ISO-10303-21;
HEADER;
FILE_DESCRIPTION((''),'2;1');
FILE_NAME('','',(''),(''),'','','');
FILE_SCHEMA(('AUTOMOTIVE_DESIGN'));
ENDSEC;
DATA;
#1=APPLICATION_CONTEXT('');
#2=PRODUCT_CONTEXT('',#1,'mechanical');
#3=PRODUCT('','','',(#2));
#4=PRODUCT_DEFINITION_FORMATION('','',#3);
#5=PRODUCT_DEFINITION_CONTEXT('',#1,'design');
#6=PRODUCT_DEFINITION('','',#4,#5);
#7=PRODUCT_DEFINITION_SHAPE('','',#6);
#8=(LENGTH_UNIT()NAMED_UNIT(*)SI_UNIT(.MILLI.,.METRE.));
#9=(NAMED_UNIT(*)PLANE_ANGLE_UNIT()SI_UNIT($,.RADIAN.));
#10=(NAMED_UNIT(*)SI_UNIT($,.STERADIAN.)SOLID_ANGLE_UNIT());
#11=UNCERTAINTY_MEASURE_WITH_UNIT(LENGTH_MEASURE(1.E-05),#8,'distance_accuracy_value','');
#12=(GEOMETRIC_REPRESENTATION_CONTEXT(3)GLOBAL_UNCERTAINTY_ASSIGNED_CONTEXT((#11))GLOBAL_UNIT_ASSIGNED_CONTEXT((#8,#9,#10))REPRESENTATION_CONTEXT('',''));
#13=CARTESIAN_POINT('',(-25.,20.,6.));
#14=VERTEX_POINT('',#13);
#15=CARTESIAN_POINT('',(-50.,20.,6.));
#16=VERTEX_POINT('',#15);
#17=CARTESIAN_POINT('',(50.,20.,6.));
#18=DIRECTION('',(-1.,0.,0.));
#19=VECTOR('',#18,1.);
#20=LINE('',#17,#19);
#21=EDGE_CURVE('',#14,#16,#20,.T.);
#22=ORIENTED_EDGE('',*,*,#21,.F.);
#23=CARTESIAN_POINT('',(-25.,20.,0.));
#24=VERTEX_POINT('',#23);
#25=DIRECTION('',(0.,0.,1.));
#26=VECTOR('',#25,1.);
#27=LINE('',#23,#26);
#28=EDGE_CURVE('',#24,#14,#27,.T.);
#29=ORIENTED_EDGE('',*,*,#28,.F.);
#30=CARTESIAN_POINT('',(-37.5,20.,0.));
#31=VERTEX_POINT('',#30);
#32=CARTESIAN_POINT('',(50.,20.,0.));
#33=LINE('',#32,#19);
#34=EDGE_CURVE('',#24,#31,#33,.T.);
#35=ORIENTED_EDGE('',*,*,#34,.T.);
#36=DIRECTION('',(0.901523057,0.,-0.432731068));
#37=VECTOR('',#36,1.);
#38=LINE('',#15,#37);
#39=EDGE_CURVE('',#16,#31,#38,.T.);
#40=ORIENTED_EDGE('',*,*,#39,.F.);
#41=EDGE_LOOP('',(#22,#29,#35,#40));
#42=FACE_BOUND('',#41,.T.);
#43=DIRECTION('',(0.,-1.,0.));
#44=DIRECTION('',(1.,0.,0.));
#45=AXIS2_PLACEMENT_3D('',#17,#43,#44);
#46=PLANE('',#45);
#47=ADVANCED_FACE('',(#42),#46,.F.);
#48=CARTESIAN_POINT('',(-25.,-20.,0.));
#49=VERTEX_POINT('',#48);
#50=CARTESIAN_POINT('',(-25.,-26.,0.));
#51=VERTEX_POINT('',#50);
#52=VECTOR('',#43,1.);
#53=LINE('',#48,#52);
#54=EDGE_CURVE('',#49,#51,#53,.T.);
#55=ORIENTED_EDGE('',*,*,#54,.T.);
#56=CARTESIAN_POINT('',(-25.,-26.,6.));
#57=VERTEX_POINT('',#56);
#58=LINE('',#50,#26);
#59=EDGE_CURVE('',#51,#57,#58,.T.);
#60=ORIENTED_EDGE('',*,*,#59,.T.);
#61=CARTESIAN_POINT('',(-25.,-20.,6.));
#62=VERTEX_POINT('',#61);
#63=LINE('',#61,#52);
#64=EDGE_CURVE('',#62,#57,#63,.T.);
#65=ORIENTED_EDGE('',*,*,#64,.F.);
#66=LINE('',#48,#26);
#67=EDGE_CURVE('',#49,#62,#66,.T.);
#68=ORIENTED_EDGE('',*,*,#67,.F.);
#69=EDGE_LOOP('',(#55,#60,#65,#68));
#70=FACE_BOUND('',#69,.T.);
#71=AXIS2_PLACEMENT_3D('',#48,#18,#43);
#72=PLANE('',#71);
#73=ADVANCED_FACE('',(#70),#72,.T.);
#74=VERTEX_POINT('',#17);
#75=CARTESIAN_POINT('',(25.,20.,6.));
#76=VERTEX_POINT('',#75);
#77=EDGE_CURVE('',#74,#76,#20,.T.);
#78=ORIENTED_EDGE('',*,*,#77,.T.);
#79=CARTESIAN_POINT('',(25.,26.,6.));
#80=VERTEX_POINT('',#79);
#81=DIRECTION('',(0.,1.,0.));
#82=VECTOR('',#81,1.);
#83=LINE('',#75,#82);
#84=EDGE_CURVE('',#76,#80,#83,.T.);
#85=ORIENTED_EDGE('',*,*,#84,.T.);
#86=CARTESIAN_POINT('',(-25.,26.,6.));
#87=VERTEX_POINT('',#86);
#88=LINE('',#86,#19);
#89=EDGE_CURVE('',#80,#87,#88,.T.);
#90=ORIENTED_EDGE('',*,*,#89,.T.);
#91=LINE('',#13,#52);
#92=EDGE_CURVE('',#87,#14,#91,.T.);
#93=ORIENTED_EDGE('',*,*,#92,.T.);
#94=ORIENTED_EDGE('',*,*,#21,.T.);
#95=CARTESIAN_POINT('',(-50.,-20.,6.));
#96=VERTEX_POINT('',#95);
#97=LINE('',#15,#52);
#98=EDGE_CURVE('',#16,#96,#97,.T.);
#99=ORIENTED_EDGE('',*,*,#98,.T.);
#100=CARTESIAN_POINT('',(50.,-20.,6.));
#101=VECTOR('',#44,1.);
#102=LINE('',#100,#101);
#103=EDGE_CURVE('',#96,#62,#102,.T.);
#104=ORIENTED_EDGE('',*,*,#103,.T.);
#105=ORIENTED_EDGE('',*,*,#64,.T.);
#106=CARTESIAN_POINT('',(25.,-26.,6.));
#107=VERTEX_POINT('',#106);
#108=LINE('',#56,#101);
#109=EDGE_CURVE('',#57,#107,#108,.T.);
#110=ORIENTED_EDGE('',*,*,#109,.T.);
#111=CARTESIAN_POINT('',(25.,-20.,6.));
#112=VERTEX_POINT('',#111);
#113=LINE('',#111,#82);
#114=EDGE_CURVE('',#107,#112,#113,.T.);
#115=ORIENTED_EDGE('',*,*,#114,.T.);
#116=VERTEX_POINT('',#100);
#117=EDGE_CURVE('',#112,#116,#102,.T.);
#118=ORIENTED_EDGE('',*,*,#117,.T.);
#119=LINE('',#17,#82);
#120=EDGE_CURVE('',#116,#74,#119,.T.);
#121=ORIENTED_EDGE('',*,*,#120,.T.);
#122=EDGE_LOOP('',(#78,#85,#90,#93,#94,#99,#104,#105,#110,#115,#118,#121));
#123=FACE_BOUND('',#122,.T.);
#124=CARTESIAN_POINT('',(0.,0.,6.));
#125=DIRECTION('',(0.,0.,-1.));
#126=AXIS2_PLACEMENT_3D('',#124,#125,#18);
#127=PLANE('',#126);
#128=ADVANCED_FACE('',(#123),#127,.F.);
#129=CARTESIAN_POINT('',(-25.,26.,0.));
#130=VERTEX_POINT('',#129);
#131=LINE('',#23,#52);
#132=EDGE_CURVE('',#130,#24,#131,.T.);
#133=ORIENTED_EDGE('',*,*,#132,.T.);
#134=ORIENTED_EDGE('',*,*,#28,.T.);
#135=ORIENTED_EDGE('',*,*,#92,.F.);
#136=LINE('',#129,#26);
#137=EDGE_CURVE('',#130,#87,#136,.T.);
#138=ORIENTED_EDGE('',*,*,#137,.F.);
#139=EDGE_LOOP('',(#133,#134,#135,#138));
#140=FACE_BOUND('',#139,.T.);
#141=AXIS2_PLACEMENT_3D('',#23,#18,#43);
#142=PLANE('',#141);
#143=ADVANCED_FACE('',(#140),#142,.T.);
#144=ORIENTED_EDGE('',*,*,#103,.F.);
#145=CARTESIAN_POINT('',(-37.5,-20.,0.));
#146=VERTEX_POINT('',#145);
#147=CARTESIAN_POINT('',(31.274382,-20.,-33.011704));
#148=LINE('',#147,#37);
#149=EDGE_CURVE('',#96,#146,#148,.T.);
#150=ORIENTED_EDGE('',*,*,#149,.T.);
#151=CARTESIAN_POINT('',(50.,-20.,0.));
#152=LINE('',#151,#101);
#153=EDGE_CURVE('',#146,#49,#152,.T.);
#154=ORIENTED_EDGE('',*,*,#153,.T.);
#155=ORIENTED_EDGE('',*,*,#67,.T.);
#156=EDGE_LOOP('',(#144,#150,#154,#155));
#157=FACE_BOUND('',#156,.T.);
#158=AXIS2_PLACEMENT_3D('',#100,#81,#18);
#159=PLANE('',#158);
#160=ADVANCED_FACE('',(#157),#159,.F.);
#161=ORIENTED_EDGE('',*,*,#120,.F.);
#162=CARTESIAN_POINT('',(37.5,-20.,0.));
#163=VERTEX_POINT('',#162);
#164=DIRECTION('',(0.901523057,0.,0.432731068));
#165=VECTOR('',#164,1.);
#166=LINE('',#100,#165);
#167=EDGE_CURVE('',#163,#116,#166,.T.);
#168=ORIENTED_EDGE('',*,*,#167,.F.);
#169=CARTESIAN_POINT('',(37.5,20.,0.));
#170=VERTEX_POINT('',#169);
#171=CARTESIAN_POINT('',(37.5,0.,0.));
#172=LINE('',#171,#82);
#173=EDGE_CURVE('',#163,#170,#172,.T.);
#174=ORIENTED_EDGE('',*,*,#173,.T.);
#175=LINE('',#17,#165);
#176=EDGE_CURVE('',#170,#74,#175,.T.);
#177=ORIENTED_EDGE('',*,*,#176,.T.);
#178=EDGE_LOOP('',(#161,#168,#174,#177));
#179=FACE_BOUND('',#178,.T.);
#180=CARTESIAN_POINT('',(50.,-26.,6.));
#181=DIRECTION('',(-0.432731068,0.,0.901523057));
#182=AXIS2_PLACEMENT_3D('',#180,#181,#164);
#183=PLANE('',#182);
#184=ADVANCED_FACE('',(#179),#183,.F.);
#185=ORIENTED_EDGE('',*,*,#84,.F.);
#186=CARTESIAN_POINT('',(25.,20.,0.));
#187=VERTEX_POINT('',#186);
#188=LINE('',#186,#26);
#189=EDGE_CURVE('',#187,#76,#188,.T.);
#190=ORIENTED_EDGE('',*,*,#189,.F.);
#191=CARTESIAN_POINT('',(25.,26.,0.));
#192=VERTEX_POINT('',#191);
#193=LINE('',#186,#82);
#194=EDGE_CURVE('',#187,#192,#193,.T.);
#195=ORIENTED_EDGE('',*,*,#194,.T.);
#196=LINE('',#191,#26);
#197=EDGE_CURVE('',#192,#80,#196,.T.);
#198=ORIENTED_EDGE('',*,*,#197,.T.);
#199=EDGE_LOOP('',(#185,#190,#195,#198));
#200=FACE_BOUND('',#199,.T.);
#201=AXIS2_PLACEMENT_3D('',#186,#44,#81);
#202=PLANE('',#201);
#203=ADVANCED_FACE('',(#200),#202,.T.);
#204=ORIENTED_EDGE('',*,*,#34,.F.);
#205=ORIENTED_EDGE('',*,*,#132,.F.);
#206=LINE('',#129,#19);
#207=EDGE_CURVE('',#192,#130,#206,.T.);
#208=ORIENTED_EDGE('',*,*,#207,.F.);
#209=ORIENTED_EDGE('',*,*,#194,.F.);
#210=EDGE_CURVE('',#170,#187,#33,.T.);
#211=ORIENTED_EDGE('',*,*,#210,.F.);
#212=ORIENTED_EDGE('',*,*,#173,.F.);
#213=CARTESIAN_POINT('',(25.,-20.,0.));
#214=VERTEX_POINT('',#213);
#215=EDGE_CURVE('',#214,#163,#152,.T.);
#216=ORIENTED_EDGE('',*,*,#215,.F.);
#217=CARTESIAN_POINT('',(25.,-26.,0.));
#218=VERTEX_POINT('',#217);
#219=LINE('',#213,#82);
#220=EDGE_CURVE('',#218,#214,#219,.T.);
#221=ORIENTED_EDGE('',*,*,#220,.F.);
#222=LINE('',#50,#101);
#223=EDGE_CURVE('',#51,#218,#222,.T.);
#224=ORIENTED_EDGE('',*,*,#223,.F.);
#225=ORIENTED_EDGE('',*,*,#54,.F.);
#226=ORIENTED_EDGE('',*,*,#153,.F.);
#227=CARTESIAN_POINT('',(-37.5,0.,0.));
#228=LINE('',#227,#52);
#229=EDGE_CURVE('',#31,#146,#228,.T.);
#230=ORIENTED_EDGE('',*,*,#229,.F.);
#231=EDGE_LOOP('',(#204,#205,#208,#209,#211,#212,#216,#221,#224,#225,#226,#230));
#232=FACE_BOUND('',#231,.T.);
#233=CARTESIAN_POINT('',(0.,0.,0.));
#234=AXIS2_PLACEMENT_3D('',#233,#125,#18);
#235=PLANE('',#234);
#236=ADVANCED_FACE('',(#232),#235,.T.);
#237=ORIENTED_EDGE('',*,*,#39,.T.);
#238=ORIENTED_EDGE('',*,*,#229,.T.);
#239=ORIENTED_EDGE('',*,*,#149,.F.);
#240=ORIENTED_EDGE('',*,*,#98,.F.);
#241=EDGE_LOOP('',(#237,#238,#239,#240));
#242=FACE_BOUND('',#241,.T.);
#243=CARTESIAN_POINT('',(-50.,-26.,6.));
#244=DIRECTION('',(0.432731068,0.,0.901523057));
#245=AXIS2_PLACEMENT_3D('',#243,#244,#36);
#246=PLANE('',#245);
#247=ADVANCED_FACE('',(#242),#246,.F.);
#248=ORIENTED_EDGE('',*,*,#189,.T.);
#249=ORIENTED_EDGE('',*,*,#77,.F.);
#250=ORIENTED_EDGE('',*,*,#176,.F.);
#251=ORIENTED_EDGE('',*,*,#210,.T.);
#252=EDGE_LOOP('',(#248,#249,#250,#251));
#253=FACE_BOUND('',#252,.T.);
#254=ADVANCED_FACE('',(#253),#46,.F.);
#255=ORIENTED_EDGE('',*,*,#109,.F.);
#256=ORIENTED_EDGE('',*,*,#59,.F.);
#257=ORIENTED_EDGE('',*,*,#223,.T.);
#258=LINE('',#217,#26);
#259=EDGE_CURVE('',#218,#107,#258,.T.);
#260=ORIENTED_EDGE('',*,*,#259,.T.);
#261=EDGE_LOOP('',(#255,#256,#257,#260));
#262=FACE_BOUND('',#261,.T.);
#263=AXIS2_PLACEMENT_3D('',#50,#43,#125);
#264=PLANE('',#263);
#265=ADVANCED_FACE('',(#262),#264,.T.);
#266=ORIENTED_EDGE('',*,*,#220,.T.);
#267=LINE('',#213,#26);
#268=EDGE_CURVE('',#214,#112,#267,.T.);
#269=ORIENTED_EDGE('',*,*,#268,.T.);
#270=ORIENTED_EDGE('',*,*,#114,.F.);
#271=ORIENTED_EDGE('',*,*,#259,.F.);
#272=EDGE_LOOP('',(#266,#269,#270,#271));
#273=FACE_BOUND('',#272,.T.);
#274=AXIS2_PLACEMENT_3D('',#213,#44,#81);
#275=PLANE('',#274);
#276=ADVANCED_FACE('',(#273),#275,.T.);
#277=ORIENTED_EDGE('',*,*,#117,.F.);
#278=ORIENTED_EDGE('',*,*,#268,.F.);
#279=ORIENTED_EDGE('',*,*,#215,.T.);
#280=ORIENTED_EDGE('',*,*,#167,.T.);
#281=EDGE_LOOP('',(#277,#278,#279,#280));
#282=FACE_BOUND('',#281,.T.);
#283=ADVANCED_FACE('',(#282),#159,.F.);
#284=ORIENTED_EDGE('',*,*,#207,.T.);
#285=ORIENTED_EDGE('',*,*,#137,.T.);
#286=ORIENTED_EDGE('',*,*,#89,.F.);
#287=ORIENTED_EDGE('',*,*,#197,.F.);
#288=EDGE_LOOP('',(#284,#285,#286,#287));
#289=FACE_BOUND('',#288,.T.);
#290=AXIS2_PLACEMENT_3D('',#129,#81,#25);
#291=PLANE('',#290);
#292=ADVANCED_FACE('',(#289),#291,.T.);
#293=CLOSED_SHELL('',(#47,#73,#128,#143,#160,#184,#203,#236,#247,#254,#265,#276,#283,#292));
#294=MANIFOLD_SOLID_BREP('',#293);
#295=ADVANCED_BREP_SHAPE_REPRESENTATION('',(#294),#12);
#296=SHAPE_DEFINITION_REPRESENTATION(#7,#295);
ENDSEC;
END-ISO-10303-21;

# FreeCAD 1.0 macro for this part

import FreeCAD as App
import Part
import Sketcher
from FreeCAD import Vector

doc = App.newDocument("Part")
body = doc.addObject("PartDesign::Body", "Body")

# Sketch on XY plane
sketch1 = doc.addObject("Sketcher::SketchObject", "Sketch")
body.addObject(sketch1)
sketch1.AttachmentSupport = (doc.XY_Plane, [""])
sketch1.MapMode = "FlatFace"
sketch1.addGeometry(Part.LineSegment(Vector(-50, 20, 0), Vector(-50, -20, 0)), False)
sketch1.addGeometry(Part.LineSegment(Vector(-50, -20, 0), Vector(50, -20, 0)), False)
sketch1.addGeometry(Part.LineSegment(Vector(50, -20, 0), Vector(50, 20, 0)), False)
sketch1.addGeometry(Part.LineSegment(Vector(50, 20, 0), Vector(-50, 20, 0)), False)
sketch1.addConstraint(Sketcher.Constraint("Coincident", 0, 2, 1, 1))
sketch1.addConstraint(Sketcher.Constraint("Coincident", 1, 2, 2, 1))
sketch1.addConstraint(Sketcher.Constraint("Coincident", 2, 2, 3, 1))
sketch1.addConstraint(Sketcher.Constraint("Coincident", 3, 2, 0, 1))
sketch1.addConstraint(Sketcher.Constraint("Vertical", 0))
sketch1.addConstraint(Sketcher.Constraint("Horizontal", 1))
sketch1.addConstraint(Sketcher.Constraint("Vertical", 2))
sketch1.addConstraint(Sketcher.Constraint("Horizontal", 3))
sketch1.addConstraint(Sketcher.Constraint("Symmetric", 0, 2, 2, 2, -1, 1))
sketch1.addConstraint(Sketcher.Constraint("DistanceX", 1, 1, 1, 2, 100.0))
sketch1.addConstraint(Sketcher.Constraint("DistanceY", 0, 2, 0, 1, 40.0))
pad1 = doc.addObject("PartDesign::Pad", "Pad")
body.addObject(pad1)
pad1.Profile = sketch1
pad1.Length = 6

# Sketch on XY plane
sketch2 = doc.addObject("Sketcher::SketchObject", "Sketch001")
body.addObject(sketch2)
sketch2.AttachmentSupport = (doc.XY_Plane, [""])
sketch2.MapMode = "FlatFace"
sketch2.AttachmentOffset = App.Placement(Vector(0, 0, 6), App.Rotation())
sketch2.addGeometry(Part.LineSegment(Vector(-25, 26, 0), Vector(-25, 20, 0)), False)
sketch2.addGeometry(Part.LineSegment(Vector(-25, 20, 0), Vector(25, 20, 0)), False)
sketch2.addGeometry(Part.LineSegment(Vector(25, 20, 0), Vector(25, 26, 0)), False)
sketch2.addGeometry(Part.LineSegment(Vector(25, 26, 0), Vector(-25, 26, 0)), False)
sketch2.addGeometry(Part.LineSegment(Vector(-25, -20, 0), Vector(-25, -26, 0)), False)
sketch2.addGeometry(Part.LineSegment(Vector(-25, -26, 0), Vector(25, -26, 0)), False)
sketch2.addGeometry(Part.LineSegment(Vector(25, -26, 0), Vector(25, -20, 0)), False)
sketch2.addGeometry(Part.LineSegment(Vector(25, -20, 0), Vector(-25, -20, 0)), False)
sketch2.addConstraint(Sketcher.Constraint("Coincident", 0, 2, 1, 1))
sketch2.addConstraint(Sketcher.Constraint("Coincident", 1, 2, 2, 1))
sketch2.addConstraint(Sketcher.Constraint("Coincident", 2, 2, 3, 1))
sketch2.addConstraint(Sketcher.Constraint("Coincident", 3, 2, 0, 1))
sketch2.addConstraint(Sketcher.Constraint("Coincident", 4, 2, 5, 1))
sketch2.addConstraint(Sketcher.Constraint("Coincident", 5, 2, 6, 1))
sketch2.addConstraint(Sketcher.Constraint("Coincident", 6, 2, 7, 1))
sketch2.addConstraint(Sketcher.Constraint("Coincident", 7, 2, 4, 1))
sketch2.addConstraint(Sketcher.Constraint("Vertical", 0))
sketch2.addConstraint(Sketcher.Constraint("Horizontal", 1))
sketch2.addConstraint(Sketcher.Constraint("Vertical", 2))
sketch2.addConstraint(Sketcher.Constraint("Horizontal", 3))
sketch2.addConstraint(Sketcher.Constraint("Vertical", 4))
sketch2.addConstraint(Sketcher.Constraint("Horizontal", 5))
sketch2.addConstraint(Sketcher.Constraint("Vertical", 6))
sketch2.addConstraint(Sketcher.Constraint("Horizontal", 7))
sketch2.addConstraint(Sketcher.Constraint("Symmetric", 2, 2, 4, 2, -1, 1))
sketch2.addConstraint(Sketcher.Constraint("Symmetric", 0, 2, 6, 2, -1, 1))
sketch2.addConstraint(Sketcher.Constraint("Vertical", 3, 2, 4, 2))
sketch2.addConstraint(Sketcher.Constraint("DistanceX", 1, 1, 1, 2, 50.0))
sketch2.addConstraint(Sketcher.Constraint("DistanceY", 0, 2, 0, 1, 6.0))
sketch2.addConstraint(Sketcher.Constraint("DistanceY", -1, 1, 0, 2, 20.0))
pad2 = doc.addObject("PartDesign::Pad", "Pad001")
body.addObject(pad2)
pad2.Profile = sketch2
pad2.Length = 6
pad2.Reversed = True

# Sketch on XZ plane
sketch3 = doc.addObject("Sketcher::SketchObject", "Sketch002")
body.addObject(sketch3)
sketch3.AttachmentSupport = (doc.XZ_Plane, [""])
sketch3.MapMode = "FlatFace"
sketch3.AttachmentOffset = App.Placement(Vector(0, 0, -20), App.Rotation())
sketch3.addGeometry(Part.LineSegment(Vector(-50, 6, 0), Vector(-38, 0, 0)), False)
sketch3.addGeometry(Part.LineSegment(Vector(-38, 0, 0), Vector(-50, 0, 0)), False)
sketch3.addGeometry(Part.LineSegment(Vector(-50, 0, 0), Vector(-50, 6, 0)), False)
sketch3.addGeometry(Part.LineSegment(Vector(38, 0, 0), Vector(50, 6, 0)), False)
sketch3.addGeometry(Part.LineSegment(Vector(50, 6, 0), Vector(50, 0, 0)), False)
sketch3.addGeometry(Part.LineSegment(Vector(50, 0, 0), Vector(38, 0, 0)), False)
sketch3.addConstraint(Sketcher.Constraint("Coincident", 0, 2, 1, 1))
sketch3.addConstraint(Sketcher.Constraint("Coincident", 1, 2, 2, 1))
sketch3.addConstraint(Sketcher.Constraint("Coincident", 2, 2, 0, 1))
sketch3.addConstraint(Sketcher.Constraint("Coincident", 3, 2, 4, 1))
sketch3.addConstraint(Sketcher.Constraint("Coincident", 4, 2, 5, 1))
sketch3.addConstraint(Sketcher.Constraint("Coincident", 5, 2, 3, 1))
sketch3.addConstraint(Sketcher.Constraint("Horizontal", 1))
sketch3.addConstraint(Sketcher.Constraint("Vertical", 2))
sketch3.addConstraint(Sketcher.Constraint("Vertical", 4))
sketch3.addConstraint(Sketcher.Constraint("Horizontal", 5))
sketch3.addConstraint(Sketcher.Constraint("Symmetric", 1, 2, 4, 2, -1, 1))
sketch3.addConstraint(Sketcher.Constraint("Symmetric", 0, 2, 5, 2, -2))
sketch3.addConstraint(Sketcher.Constraint("Horizontal", 2, 2, 3, 2))
sketch3.addConstraint(Sketcher.Constraint("DistanceY", 2, 1, 2, 2, 6.0))
sketch3.addConstraint(Sketcher.Constraint("DistanceX", 1, 2, 1, 1, 12.5))
sketch3.addConstraint(Sketcher.Constraint("DistanceX", 1, 2, -1, 1, 50.0))
pocket1 = doc.addObject("PartDesign::Pocket", "Pocket")
body.addObject(pocket1)
pocket1.Profile = sketch3
pocket1.Type = "ThroughAll"
pocket1.Reversed = True

doc.recompute()
